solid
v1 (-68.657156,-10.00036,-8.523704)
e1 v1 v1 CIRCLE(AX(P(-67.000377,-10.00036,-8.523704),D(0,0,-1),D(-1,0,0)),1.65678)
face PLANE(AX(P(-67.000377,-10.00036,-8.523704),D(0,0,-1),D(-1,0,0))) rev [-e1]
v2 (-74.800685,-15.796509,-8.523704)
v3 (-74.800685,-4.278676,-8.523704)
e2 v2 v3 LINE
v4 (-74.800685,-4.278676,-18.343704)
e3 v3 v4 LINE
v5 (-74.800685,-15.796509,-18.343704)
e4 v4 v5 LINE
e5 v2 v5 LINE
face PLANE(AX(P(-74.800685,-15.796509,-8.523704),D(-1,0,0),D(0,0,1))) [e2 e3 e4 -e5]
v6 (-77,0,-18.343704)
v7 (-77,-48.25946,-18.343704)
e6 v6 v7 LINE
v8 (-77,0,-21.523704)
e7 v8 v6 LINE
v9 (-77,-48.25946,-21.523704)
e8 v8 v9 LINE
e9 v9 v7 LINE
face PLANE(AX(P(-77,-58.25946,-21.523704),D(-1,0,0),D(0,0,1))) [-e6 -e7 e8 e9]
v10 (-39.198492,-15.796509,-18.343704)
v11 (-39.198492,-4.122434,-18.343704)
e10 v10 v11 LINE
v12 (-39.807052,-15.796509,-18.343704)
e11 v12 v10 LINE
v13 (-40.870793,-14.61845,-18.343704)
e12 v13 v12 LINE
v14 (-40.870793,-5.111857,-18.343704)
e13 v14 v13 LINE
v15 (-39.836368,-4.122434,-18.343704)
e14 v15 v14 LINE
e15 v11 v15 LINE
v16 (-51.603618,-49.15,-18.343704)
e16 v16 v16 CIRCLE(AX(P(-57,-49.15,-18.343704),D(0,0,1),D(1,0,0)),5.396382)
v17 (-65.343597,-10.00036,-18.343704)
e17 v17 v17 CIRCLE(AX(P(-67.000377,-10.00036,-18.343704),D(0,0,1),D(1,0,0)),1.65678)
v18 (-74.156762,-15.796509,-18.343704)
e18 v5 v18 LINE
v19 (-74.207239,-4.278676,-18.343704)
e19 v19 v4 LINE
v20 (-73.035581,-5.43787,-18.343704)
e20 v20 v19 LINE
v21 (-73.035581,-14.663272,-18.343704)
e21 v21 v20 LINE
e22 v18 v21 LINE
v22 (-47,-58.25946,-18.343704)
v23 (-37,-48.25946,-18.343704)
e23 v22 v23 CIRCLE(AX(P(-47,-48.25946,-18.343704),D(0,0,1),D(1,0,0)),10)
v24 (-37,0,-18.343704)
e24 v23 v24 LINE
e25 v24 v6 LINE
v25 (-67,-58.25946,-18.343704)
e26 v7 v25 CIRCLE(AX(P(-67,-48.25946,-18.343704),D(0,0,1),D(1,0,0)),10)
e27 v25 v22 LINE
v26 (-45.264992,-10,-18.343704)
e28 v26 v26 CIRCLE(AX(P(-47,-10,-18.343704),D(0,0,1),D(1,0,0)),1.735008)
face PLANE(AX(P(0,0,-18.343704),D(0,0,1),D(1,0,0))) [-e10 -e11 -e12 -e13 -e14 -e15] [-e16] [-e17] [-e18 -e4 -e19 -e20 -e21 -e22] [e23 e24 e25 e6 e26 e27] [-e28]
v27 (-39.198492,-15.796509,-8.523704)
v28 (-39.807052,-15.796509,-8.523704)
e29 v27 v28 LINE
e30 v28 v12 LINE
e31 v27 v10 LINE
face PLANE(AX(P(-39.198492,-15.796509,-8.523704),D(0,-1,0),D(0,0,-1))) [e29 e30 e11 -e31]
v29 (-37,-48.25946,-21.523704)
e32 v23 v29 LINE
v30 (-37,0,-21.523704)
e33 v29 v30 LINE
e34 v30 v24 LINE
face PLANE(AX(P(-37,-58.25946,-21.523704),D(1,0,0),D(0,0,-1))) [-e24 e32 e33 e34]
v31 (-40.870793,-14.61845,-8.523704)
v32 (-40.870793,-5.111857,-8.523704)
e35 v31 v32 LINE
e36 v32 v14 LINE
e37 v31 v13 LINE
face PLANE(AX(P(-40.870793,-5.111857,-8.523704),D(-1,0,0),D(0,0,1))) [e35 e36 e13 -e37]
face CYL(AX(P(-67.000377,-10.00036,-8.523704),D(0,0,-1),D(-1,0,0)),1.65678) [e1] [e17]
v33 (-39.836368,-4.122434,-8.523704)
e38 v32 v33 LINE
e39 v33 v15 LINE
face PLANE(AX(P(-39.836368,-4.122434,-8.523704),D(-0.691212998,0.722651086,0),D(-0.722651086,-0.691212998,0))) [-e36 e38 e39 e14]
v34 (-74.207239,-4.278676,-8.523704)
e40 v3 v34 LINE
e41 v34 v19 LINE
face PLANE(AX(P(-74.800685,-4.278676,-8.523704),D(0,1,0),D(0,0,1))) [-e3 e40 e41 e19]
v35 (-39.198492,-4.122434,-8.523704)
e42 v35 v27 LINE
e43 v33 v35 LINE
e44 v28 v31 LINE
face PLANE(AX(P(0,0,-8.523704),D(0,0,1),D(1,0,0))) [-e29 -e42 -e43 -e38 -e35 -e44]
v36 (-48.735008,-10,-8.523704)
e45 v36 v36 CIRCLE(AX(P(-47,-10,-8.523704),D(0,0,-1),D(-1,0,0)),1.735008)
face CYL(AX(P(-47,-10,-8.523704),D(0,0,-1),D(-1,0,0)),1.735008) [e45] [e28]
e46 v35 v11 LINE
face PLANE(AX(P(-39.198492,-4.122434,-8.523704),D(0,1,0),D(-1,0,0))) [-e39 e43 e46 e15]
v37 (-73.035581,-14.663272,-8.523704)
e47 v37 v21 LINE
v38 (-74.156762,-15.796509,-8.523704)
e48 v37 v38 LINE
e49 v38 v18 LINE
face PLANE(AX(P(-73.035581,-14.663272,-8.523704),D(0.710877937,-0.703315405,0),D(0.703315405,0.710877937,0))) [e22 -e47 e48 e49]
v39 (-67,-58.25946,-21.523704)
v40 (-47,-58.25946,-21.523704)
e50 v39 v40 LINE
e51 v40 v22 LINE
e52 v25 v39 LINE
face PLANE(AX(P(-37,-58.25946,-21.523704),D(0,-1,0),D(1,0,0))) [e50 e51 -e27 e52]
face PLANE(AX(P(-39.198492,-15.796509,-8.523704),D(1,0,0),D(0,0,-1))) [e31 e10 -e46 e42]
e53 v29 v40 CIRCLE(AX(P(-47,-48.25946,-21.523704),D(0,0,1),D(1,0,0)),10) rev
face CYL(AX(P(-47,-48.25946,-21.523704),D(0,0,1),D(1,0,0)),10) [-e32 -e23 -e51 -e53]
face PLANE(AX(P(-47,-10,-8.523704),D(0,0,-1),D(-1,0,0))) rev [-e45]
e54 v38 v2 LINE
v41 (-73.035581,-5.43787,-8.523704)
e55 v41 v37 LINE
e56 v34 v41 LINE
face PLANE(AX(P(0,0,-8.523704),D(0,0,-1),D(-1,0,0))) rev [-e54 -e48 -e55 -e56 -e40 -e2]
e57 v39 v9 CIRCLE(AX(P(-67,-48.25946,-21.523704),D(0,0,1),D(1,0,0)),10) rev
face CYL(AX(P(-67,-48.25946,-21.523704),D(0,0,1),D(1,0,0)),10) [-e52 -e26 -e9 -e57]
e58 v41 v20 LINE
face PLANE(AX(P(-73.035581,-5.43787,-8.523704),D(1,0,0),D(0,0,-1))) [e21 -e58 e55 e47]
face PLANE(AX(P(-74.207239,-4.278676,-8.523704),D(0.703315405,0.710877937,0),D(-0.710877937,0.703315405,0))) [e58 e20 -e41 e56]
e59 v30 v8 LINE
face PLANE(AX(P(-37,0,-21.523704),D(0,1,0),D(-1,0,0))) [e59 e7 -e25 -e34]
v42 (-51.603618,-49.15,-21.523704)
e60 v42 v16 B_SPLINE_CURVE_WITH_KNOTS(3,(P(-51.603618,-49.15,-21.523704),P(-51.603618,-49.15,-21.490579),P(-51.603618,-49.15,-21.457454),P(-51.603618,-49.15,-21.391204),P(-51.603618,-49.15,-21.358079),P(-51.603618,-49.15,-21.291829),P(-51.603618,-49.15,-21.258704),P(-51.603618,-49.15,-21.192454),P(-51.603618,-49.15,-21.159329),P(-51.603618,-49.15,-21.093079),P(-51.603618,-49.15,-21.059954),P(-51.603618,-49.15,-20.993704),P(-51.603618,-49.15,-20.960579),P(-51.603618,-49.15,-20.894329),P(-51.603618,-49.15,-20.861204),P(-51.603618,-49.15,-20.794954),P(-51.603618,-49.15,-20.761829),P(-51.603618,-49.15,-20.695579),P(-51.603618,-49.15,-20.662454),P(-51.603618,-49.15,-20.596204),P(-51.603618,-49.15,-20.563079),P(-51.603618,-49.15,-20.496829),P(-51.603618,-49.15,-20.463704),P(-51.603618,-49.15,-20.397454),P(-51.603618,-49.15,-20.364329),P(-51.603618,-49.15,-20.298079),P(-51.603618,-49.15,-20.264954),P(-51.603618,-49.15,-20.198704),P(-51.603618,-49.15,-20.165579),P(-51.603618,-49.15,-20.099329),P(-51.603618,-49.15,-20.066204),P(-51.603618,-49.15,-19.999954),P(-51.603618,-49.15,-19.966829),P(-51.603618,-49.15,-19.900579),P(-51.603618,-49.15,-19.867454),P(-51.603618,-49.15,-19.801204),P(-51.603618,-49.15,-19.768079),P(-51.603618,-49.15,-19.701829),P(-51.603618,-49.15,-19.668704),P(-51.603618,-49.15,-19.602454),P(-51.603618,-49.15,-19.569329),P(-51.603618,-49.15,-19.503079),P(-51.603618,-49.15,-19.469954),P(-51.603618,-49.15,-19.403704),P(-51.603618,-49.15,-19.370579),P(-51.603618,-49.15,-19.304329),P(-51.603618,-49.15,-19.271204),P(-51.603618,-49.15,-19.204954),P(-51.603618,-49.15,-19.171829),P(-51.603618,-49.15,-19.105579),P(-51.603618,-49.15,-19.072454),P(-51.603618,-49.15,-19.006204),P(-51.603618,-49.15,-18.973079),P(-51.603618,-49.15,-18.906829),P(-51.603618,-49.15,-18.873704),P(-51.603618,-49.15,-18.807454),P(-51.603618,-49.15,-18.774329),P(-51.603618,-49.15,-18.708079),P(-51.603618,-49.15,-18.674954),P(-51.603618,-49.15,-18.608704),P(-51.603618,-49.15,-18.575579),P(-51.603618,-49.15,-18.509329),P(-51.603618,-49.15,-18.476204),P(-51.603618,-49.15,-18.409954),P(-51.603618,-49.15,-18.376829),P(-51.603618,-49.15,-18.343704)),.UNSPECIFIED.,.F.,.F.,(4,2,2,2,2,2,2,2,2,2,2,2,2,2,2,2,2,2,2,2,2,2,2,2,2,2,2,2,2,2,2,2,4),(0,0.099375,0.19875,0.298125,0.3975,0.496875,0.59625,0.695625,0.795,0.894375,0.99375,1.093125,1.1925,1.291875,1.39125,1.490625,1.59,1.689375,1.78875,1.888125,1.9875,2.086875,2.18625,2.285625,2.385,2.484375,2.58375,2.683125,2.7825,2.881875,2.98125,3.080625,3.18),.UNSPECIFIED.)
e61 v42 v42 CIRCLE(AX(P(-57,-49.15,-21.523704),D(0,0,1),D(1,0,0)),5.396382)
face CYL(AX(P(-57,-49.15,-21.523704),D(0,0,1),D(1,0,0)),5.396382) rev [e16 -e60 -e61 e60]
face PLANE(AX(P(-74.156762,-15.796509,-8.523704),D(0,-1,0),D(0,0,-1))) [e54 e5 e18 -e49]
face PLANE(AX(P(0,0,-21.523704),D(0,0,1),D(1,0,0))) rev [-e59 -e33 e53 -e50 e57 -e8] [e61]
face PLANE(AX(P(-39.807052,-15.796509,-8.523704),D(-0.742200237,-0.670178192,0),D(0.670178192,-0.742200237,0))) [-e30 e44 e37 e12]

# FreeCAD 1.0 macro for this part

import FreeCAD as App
import Part
import Sketcher

V = App.Vector


def edges_at(feature, points):
    """Names of the edges that pass closest to the given points."""
    edges = feature.Shape.Edges
    near = lambda p: min(range(len(edges)), key=lambda i: edges[i].distToShape(Part.Vertex(*p))[0])
    return sorted({f"Edge{near(p) + 1}" for p in points})


def add_polygon(sketch, points):
    """Adds a closed chain of lines whose ends are joined by coincident constraints."""
    first, n = sketch.GeometryCount, len(points)
    for a, b in zip(points, points[1:] + points[:1]):
        sketch.addGeometry(Part.LineSegment(App.Vector(*a, 0), App.Vector(*b, 0)), False)
    for i in range(n):
        sketch.addConstraint(Sketcher.Constraint("Coincident", first + i, 2, first + (i + 1) % n, 1))

doc = App.newDocument("Part")
body = doc.addObject("PartDesign::Body", "Body")

sketch1 = body.newObject("Sketcher::SketchObject", "Sketch")
sketch1.AttachmentSupport = (doc.getObject("XY_Plane"), [""])
sketch1.MapMode = "FlatFace"
sketch1.AttachmentOffset = App.Placement(V(0, 0, -18.343704), App.Rotation())
add_polygon(sketch1, [(-77, 0), (-77, -58), (-37, -58), (-37, 0)])
sketch1.addGeometry(Part.Circle(V(-57, -49, 0), V(0, 0, 1), 5), False)
sketch1.addConstraint([
    Sketcher.Constraint("Vertical", 0),
    Sketcher.Constraint("Horizontal", 1),
    Sketcher.Constraint("Vertical", 2),
    Sketcher.Constraint("Horizontal", 3),
    Sketcher.Constraint("PointOnObject", 2, 2, -1),
    Sketcher.Constraint("DistanceX", 1, 1, 1, 2, 40.0),
    Sketcher.Constraint("DistanceX", 4, 3, -1, 1, 57.0),
    Sketcher.Constraint("DistanceX", 0, 2, -1, 1, 77.0),
    Sketcher.Constraint("DistanceY", 4, 3, -1, 1, 49.15),
    Sketcher.Constraint("Diameter", 4, 10.792763),
    Sketcher.Constraint("DistanceY", 0, 2, 0, 1, 58.25946),
])
pad1 = body.newObject("PartDesign::Pad", "Pad")
pad1.Profile = sketch1
pad1.Length = 3.18
pad1.Reversed = True
doc.recompute()

fillet = body.newObject("PartDesign::Fillet", "Fillet")
fillet.Base = (pad1, edges_at(pad1, [(-37, -58.259, -19.934), (-77, -58.259, -19.934)]))
fillet.Radius = 10

sketch2 = body.newObject("Sketcher::SketchObject", "Sketch001")
sketch2.AttachmentSupport = (doc.getObject("XY_Plane"), [""])
sketch2.MapMode = "FlatFace"
sketch2.AttachmentOffset = App.Placement(V(0, 0, -21.523704), App.Rotation())
sketch2.addGeometry(Part.Circle(V(-47, -10, 0), V(0, 0, 1), 1.735008), False)
sketch2.addGeometry(Part.Circle(V(-67.000377, -10.00036, 0), V(0, 0, 1), 1.65678), False)
add_polygon(sketch2, [(-74.800685, -15.796509), (-74.800685, -4.278676), (-74.207239, -4.278676), (-73.035581, -5.43787), (-73.035581, -14.663272), (-74.156762, -15.796509)])
add_polygon(sketch2, [(-39.198492, -4.122434), (-39.198492, -15.796509), (-39.807052, -15.796509), (-40.870793, -14.61845), (-40.870793, -5.111857), (-39.836368, -4.122434)])
sketch2.addConstraint([
    Sketcher.Constraint("Vertical", 2),
    Sketcher.Constraint("Horizontal", 3),
    Sketcher.Constraint("Vertical", 5),
    Sketcher.Constraint("Horizontal", 7),
    Sketcher.Constraint("Vertical", 8),
    Sketcher.Constraint("Horizontal", 9),
    Sketcher.Constraint("Vertical", 11),
    Sketcher.Constraint("Horizontal", 13),
    Sketcher.Constraint("DistanceX", 0, 3, -1, 1, 47.0),
    Sketcher.Constraint("DistanceY", 0, 3, -1, 1, 10.0),
    Sketcher.Constraint("Diameter", 1, 3.313559),
    Sketcher.Constraint("Diameter", 0, 3.470016),
    Sketcher.Constraint("DistanceY", 5, 2, 5, 1, 9.225402),
    Sketcher.Constraint("DistanceX", 9, 2, 9, 1, 0.60856),
    Sketcher.Constraint("DistanceX", 10, 2, 8, 2, 1.672301),
    Sketcher.Constraint("Distance", 10, 1.587251),
    Sketcher.Constraint("Distance", 12, 1.431431),
    Sketcher.Constraint("DistanceX", 3, 1, 3, 2, 0.593446),
    Sketcher.Constraint("DistanceX", 7, 2, 7, 1, 0.643924),
    Sketcher.Constraint("DistanceX", 13, 1, 13, 2, 0.637876),
    Sketcher.Constraint("DistanceY", 2, 1, 2, 2, 11.517832),
    Sketcher.Constraint("DistanceY", 8, 2, 8, 1, 11.674075),
    Sketcher.Constraint("DistanceY", 1, 3, -1, 1, 10.00036),
    Sketcher.Constraint("DistanceX", 3, 2, -1, 1, 74.207239),
    Sketcher.Constraint("DistanceX", 4, 2, -1, 1, 73.035581),
    Sketcher.Constraint("DistanceY", 4, 2, -1, 1, 5.43787),
    Sketcher.Constraint("DistanceY", 6, 2, -1, 1, 15.796509),
    Sketcher.Constraint("DistanceX", 8, 2, -1, 1, 39.198492),
    Sketcher.Constraint("DistanceY", 8, 2, -1, 1, 15.796509),
    Sketcher.Constraint("DistanceX", 2, 2, 1, 3, 7.800308),
])
pad2 = body.newObject("PartDesign::Pad", "Pad001")
pad2.Profile = sketch2
pad2.Length = 13

doc.recompute()
